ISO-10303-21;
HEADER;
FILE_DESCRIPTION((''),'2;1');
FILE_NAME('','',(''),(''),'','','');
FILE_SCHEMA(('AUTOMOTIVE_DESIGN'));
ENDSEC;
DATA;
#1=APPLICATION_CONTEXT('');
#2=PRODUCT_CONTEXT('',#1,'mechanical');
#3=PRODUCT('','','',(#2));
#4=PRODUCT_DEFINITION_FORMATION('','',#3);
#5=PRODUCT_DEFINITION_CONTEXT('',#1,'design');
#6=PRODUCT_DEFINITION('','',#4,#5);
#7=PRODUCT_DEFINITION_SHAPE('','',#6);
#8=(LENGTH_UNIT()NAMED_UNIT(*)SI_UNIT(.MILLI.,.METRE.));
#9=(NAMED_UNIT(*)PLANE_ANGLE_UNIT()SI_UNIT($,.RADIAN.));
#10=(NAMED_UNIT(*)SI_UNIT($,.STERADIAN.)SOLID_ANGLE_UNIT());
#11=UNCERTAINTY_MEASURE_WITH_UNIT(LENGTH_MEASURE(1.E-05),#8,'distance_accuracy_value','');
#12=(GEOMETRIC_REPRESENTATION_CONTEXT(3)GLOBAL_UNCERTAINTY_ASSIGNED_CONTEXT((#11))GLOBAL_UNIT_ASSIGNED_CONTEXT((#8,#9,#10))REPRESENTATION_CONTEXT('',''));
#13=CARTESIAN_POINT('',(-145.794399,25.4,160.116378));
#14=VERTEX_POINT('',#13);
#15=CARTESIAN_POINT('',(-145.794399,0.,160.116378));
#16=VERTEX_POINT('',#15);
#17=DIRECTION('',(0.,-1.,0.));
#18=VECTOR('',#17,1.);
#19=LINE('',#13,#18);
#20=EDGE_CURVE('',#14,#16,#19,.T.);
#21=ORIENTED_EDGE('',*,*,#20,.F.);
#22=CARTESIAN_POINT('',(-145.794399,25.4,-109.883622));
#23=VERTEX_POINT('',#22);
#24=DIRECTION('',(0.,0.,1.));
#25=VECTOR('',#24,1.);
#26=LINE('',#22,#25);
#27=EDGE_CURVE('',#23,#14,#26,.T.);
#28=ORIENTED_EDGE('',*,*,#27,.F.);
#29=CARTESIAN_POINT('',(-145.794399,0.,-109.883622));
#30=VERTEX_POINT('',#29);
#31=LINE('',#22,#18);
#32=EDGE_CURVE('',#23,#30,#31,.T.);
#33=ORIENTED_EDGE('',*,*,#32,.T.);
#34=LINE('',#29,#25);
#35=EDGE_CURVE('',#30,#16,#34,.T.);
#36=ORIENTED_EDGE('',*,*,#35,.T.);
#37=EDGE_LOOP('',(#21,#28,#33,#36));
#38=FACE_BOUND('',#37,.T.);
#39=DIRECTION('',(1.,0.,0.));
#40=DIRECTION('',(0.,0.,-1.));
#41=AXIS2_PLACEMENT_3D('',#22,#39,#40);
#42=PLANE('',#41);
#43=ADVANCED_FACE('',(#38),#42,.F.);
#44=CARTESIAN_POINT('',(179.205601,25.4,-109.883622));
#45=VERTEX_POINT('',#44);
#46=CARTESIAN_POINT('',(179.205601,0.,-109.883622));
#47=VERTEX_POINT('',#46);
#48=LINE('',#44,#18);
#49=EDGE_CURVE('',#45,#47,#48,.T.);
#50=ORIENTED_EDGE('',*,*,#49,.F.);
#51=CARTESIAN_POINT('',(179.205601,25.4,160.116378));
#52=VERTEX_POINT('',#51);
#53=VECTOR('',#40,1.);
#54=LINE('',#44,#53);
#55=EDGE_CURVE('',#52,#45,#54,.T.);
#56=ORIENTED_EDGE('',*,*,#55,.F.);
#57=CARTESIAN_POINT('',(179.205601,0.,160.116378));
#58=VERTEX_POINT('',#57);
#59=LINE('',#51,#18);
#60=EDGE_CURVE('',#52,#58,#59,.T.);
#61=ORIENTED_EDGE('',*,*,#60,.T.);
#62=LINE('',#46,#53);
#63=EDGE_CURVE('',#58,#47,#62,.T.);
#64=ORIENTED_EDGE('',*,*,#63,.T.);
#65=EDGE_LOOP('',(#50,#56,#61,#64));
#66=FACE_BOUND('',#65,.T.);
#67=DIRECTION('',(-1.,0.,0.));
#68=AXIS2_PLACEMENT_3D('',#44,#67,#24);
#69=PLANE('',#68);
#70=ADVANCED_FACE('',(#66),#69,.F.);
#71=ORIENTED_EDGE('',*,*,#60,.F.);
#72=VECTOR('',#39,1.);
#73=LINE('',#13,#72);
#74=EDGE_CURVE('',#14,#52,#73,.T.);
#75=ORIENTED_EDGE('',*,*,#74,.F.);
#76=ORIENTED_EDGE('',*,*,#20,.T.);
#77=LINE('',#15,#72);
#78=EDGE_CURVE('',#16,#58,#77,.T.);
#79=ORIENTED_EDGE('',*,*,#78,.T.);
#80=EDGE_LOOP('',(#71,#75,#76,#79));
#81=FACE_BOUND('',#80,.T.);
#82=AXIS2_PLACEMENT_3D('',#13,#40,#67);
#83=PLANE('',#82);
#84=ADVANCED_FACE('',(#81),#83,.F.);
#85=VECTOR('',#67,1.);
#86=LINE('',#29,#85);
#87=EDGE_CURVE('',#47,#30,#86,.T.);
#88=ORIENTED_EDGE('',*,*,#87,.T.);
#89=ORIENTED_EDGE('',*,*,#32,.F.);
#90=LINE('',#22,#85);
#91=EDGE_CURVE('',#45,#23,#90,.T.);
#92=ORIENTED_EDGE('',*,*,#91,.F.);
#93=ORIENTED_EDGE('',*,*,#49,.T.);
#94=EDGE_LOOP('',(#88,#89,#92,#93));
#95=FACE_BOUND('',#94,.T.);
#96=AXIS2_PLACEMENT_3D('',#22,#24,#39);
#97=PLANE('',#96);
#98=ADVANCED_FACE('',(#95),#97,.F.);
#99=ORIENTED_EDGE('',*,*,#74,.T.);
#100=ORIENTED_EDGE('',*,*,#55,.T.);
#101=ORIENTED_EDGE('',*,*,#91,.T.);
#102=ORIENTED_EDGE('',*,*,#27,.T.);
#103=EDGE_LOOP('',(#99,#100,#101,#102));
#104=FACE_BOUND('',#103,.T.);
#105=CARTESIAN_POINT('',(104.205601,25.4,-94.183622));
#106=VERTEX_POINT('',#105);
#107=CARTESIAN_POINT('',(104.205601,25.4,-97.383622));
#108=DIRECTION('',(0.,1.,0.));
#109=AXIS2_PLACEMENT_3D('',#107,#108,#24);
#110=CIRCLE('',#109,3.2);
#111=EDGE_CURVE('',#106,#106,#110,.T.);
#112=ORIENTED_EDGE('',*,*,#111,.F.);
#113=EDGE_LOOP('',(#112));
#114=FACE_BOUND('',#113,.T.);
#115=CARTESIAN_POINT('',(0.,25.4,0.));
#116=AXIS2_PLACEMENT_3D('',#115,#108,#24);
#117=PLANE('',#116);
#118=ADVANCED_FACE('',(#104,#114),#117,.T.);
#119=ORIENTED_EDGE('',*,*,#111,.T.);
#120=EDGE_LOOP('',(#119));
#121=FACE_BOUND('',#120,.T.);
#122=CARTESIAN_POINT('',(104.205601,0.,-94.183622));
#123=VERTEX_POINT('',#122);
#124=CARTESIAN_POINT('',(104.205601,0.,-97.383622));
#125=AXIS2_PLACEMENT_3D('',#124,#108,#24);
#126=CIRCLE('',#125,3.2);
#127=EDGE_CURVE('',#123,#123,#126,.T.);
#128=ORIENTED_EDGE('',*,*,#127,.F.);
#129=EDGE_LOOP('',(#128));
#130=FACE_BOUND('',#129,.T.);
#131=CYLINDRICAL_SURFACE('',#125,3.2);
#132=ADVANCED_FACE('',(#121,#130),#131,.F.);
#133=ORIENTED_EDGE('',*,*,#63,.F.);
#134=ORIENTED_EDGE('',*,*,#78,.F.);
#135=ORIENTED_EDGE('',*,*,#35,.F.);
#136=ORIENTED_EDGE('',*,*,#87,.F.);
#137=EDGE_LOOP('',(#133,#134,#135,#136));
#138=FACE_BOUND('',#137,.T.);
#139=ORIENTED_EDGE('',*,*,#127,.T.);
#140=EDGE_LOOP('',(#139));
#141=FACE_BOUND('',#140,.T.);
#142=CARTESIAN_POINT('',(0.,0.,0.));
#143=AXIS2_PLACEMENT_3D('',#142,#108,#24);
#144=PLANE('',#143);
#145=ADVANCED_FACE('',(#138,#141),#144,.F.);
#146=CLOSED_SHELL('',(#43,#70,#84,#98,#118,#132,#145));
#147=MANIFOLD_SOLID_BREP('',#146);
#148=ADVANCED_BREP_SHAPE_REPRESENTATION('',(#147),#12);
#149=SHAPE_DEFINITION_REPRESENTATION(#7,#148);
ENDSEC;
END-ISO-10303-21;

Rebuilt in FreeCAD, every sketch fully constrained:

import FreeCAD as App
import Part
import Sketcher
from FreeCAD import Vector
Q = App.Units.Quantity


def add_polygon(sketch, points):
    """Adds a closed chain of lines whose ends are joined by coincident constraints."""
    first, n = sketch.GeometryCount, len(points)
    for a, b in zip(points, points[1:] + points[:1]):
        sketch.addGeometry(Part.LineSegment(App.Vector(*a, 0), App.Vector(*b, 0)), False)
    for i in range(n):
        sketch.addConstraint(Sketcher.Constraint("Coincident", first + i, 2, first + (i + 1) % n, 1))

doc = App.newDocument("Part")
params = doc.addObject("Spreadsheet::Sheet", "Params")
for row, (alias, value) in enumerate([
    ("sketch1_width", "325 mm"),
    ("sketch1_height", "270 mm"),
    ("pad1_length", "25.4 mm"),
    ("sketch2_diameter", "6.4 mm"),
    ("pocket1_length", "25.4 mm"),
], start=1):
    params.set(f"A{row}", alias)
    params.set(f"B{row}", "=" + value)
    params.setAlias(f"B{row}", alias)

body = doc.addObject("PartDesign::Body", "Body")

sketch1 = body.newObject("Sketcher::SketchObject", "Sketch")
sketch1.AttachmentSupport = (doc.getObject("XZ_Plane"), [""])
sketch1.MapMode = "FlatFace"
add_polygon(sketch1, [(-146, -110), (-146, 160), (179, 160), (179, -110)])
sketch1.addConstraint([
    Sketcher.Constraint("Vertical", 0),
    Sketcher.Constraint("Horizontal", 1),
    Sketcher.Constraint("Vertical", 2),
    Sketcher.Constraint("Horizontal", 3),
    Sketcher.Constraint("DistanceX", 1, 1, 1, 2, Q("325 mm")),
    Sketcher.Constraint("DistanceY", 0, 1, 0, 2, Q("270 mm")),
    Sketcher.Constraint("DistanceX", 0, 2, -1, 1, Q("145.794399 mm")),
    Sketcher.Constraint("DistanceY", -1, 1, 0, 2, Q("160.116378 mm")),
])
sketch1.setExpression("Constraints[8]", "Params.sketch1_width")
sketch1.setExpression("Constraints[9]", "Params.sketch1_height")
pad1 = body.newObject("PartDesign::Pad", "Pad")
pad1.Profile = sketch1
pad1.setExpression("Length", "Params.pad1_length")
pad1.Reversed = True

sketch2 = body.newObject("Sketcher::SketchObject", "Sketch001")
sketch2.AttachmentSupport = (doc.getObject("XZ_Plane"), [""])
sketch2.MapMode = "FlatFace"
sketch2.AttachmentOffset = App.Placement(Vector(0, 0, -25.4), App.Rotation())
sketch2.addGeometry(Part.Circle(Vector(104.2, -97.4, 0), Vector(0, 0, 1), 3.2), False)
sketch2.addConstraint([
    Sketcher.Constraint("Diameter", 0, Q("6.4 mm")),
    Sketcher.Constraint("DistanceX", -1, 1, 0, 3, Q("104.205601 mm")),
    Sketcher.Constraint("DistanceY", 0, 3, -1, 1, Q("97.383622 mm")),
])
sketch2.setExpression("Constraints[0]", "Params.sketch2_diameter")
pocket1 = body.newObject("PartDesign::Pocket", "Pocket")
pocket1.Profile = sketch2
pocket1.setExpression("Length", "Params.pocket1_length")
pocket1.Reversed = True

doc.recompute()
